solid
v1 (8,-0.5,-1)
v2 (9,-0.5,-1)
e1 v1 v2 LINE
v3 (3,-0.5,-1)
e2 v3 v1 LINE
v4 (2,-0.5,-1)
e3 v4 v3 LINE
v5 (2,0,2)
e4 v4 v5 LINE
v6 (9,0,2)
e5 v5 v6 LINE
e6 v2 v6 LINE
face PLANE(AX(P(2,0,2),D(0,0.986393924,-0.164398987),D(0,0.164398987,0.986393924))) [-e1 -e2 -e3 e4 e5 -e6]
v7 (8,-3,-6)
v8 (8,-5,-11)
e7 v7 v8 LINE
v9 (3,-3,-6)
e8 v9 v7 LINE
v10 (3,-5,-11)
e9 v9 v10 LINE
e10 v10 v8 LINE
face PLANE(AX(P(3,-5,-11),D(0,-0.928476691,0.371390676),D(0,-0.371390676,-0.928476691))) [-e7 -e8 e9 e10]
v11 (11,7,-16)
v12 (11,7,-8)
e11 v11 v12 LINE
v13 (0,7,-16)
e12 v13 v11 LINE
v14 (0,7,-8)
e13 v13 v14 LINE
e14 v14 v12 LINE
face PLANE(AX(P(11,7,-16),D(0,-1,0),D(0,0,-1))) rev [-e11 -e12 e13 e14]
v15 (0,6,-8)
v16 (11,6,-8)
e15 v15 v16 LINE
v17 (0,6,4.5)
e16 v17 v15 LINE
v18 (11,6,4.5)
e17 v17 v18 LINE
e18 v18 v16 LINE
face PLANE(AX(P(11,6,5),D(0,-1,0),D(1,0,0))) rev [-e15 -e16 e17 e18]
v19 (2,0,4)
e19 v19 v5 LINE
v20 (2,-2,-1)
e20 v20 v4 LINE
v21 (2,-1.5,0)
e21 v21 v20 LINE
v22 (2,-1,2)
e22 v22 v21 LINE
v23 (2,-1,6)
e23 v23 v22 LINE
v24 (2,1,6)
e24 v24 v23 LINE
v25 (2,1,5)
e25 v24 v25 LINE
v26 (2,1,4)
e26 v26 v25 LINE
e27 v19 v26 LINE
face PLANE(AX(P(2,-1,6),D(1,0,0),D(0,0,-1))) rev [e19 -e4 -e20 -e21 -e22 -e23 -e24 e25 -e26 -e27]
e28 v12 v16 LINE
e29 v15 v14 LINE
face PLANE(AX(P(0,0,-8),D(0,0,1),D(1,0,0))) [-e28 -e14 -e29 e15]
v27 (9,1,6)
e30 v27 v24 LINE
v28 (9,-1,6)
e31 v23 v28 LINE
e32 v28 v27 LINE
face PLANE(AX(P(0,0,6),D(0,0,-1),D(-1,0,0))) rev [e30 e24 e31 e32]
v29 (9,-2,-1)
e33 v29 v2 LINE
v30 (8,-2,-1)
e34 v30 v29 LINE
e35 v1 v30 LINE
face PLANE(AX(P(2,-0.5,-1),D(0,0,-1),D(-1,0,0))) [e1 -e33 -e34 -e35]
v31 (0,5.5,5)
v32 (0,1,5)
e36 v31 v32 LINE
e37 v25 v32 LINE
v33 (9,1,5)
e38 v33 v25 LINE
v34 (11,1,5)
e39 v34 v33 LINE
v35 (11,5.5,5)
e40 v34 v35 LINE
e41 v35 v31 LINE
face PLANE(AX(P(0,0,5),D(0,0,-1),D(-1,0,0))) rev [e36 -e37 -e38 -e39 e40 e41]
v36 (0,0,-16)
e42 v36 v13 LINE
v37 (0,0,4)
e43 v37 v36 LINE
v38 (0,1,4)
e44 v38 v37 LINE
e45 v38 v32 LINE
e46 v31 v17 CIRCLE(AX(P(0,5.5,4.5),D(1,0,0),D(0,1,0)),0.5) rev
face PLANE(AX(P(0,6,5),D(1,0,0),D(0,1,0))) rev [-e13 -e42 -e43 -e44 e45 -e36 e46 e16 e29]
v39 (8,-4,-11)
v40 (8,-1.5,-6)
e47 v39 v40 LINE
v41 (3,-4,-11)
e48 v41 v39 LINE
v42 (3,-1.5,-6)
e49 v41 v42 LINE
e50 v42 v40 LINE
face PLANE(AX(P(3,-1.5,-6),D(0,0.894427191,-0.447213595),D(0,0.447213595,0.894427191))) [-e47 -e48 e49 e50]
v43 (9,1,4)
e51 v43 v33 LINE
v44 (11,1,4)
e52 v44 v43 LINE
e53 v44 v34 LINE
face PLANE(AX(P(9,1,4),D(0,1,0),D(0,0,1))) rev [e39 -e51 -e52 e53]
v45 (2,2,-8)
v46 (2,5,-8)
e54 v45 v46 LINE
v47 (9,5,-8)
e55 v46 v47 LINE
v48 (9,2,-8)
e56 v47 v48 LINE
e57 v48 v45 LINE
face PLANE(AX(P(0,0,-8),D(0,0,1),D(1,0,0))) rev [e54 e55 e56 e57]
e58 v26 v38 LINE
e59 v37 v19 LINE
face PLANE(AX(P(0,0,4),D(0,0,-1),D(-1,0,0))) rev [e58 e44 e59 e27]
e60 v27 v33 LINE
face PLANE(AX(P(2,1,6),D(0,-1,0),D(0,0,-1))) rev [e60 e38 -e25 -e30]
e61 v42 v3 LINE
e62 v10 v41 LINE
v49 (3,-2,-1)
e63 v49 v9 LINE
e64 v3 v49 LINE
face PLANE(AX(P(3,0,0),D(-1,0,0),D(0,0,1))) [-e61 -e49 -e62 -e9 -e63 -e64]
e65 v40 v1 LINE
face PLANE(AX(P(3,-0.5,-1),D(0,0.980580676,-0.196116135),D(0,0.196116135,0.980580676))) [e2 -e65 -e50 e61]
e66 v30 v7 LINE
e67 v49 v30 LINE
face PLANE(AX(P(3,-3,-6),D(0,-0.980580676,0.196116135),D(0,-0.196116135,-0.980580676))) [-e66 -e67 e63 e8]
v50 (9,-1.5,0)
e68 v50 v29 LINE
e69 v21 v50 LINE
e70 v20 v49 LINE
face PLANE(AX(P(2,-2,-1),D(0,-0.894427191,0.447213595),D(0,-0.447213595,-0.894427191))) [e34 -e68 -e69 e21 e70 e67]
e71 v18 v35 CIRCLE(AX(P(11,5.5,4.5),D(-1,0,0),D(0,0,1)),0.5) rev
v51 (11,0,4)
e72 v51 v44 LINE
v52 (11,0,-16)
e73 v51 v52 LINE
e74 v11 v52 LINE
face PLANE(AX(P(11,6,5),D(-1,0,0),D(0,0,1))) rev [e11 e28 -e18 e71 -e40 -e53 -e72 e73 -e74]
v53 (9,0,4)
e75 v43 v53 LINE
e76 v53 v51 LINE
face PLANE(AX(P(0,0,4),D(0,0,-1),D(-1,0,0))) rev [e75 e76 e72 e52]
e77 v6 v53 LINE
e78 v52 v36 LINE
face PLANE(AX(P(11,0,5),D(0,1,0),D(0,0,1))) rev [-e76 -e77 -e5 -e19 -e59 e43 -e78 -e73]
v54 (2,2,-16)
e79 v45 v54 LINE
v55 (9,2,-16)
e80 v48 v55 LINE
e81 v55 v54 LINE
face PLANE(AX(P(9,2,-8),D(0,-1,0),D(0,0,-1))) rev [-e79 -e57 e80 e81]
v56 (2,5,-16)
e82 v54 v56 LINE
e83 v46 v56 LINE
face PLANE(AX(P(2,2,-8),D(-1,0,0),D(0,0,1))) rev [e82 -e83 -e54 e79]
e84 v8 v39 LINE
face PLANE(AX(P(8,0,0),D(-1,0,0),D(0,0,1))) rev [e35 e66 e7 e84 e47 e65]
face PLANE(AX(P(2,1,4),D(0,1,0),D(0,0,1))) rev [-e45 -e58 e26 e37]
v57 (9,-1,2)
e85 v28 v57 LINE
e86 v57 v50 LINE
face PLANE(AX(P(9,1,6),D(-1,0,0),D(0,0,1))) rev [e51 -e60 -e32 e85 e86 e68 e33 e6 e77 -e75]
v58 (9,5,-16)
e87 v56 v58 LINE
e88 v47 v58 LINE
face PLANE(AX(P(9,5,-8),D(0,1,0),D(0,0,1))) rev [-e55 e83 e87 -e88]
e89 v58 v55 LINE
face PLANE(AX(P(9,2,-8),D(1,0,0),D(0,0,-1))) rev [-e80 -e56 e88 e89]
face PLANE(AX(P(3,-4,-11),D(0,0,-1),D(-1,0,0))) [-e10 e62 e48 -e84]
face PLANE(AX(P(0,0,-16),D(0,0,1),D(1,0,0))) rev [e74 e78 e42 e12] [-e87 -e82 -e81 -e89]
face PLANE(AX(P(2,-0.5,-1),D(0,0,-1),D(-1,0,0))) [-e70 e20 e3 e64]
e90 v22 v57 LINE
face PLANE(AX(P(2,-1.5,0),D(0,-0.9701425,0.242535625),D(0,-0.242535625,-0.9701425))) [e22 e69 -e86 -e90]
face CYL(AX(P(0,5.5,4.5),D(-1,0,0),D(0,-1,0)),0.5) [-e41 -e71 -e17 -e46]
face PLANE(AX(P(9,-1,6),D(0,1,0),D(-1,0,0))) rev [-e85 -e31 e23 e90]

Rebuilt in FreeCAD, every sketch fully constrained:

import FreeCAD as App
import Part
import Sketcher
from FreeCAD import Vector
Q = App.Units.Quantity


def edges_at(feature, points):
    """Names of the edges that pass closest to the given points."""
    edges = feature.Shape.Edges
    near = lambda p: min(range(len(edges)), key=lambda i: edges[i].distToShape(Part.Vertex(*p))[0])
    return sorted({f"Edge{near(p) + 1}" for p in points})

doc = App.newDocument("Part")
body = doc.addObject("PartDesign::Body", "Body")

# Sketch on XY plane
sketch1 = body.newObject("Sketcher::SketchObject", "Sketch")
sketch1.AttachmentSupport = (doc.getObject("XY_Plane"), [""])
sketch1.MapMode = "FlatFace"
sketch1.addGeometry(Part.LineSegment(Vector(0, 6, 0), Vector(0, 0, 0)), False)
sketch1.addGeometry(Part.LineSegment(Vector(0, 0, 0), Vector(11, 0, 0)), False)
sketch1.addGeometry(Part.LineSegment(Vector(11, 0, 0), Vector(11, 6, 0)), False)
sketch1.addGeometry(Part.LineSegment(Vector(11, 6, 0), Vector(0, 6, 0)), False)
sketch1.addConstraint(Sketcher.Constraint("Coincident", 0, 2, 1, 1))
sketch1.addConstraint(Sketcher.Constraint("Coincident", 1, 2, 2, 1))
sketch1.addConstraint(Sketcher.Constraint("Coincident", 2, 2, 3, 1))
sketch1.addConstraint(Sketcher.Constraint("Coincident", 3, 2, 0, 1))
sketch1.addConstraint(Sketcher.Constraint("Vertical", 0))
sketch1.addConstraint(Sketcher.Constraint("Horizontal", 1))
sketch1.addConstraint(Sketcher.Constraint("Vertical", 2))
sketch1.addConstraint(Sketcher.Constraint("Horizontal", 3))
sketch1.addConstraint(Sketcher.Constraint("Coincident", 0, 2, -1, 1))
sketch1.addConstraint(Sketcher.Constraint("DistanceX", 1, 1, 1, 2, Q("11 mm")))
sketch1.addConstraint(Sketcher.Constraint("DistanceY", 0, 2, 0, 1, Q("6 mm")))
pad1 = body.newObject("PartDesign::Pad", "Pad")
pad1.Profile = sketch1
pad1.Length = 5

# Sketch on XY plane
sketch2 = body.newObject("Sketcher::SketchObject", "Sketch001")
sketch2.AttachmentSupport = (doc.getObject("XY_Plane"), [""])
sketch2.MapMode = "FlatFace"
sketch2.addGeometry(Part.LineSegment(Vector(11, 6, 0), Vector(11, 0, 0)), False)
sketch2.addGeometry(Part.LineSegment(Vector(11, 0, 0), Vector(0, 0, 0)), False)
sketch2.addGeometry(Part.LineSegment(Vector(0, 0, 0), Vector(0, 6, 0)), False)
sketch2.addGeometry(Part.LineSegment(Vector(0, 6, 0), Vector(11, 6, 0)), False)
sketch2.addConstraint(Sketcher.Constraint("Coincident", 0, 2, 1, 1))
sketch2.addConstraint(Sketcher.Constraint("Coincident", 1, 2, 2, 1))
sketch2.addConstraint(Sketcher.Constraint("Coincident", 2, 2, 3, 1))
sketch2.addConstraint(Sketcher.Constraint("Coincident", 3, 2, 0, 1))
sketch2.addConstraint(Sketcher.Constraint("Vertical", 0))
sketch2.addConstraint(Sketcher.Constraint("Horizontal", 1))
sketch2.addConstraint(Sketcher.Constraint("Vertical", 2))
sketch2.addConstraint(Sketcher.Constraint("Horizontal", 3))
sketch2.addConstraint(Sketcher.Constraint("Coincident", 1, 2, -1, 1))
sketch2.addConstraint(Sketcher.Constraint("DistanceX", 1, 2, 1, 1, Q("11 mm")))
sketch2.addConstraint(Sketcher.Constraint("DistanceY", 0, 2, 0, 1, Q("6 mm")))
pad2 = body.newObject("PartDesign::Pad", "Pad001")
pad2.Profile = sketch2
pad2.Length = 8
pad2.Reversed = True

# Sketch on XY plane
sketch3 = body.newObject("Sketcher::SketchObject", "Sketch002")
sketch3.AttachmentSupport = (doc.getObject("XY_Plane"), [""])
sketch3.MapMode = "FlatFace"
sketch3.AttachmentOffset = App.Placement(Vector(0, 0, -8), App.Rotation())
sketch3.addGeometry(Part.LineSegment(Vector(11, 7, 0), Vector(11, 0, 0)), False)
sketch3.addGeometry(Part.LineSegment(Vector(11, 0, 0), Vector(0, 0, 0)), False)
sketch3.addGeometry(Part.LineSegment(Vector(0, 0, 0), Vector(0, 7, 0)), False)
sketch3.addGeometry(Part.LineSegment(Vector(0, 7, 0), Vector(11, 7, 0)), False)
sketch3.addConstraint(Sketcher.Constraint("Coincident", 0, 2, 1, 1))
sketch3.addConstraint(Sketcher.Constraint("Coincident", 1, 2, 2, 1))
sketch3.addConstraint(Sketcher.Constraint("Coincident", 2, 2, 3, 1))
sketch3.addConstraint(Sketcher.Constraint("Coincident", 3, 2, 0, 1))
sketch3.addConstraint(Sketcher.Constraint("Vertical", 0))
sketch3.addConstraint(Sketcher.Constraint("Horizontal", 1))
sketch3.addConstraint(Sketcher.Constraint("Vertical", 2))
sketch3.addConstraint(Sketcher.Constraint("Horizontal", 3))
sketch3.addConstraint(Sketcher.Constraint("Coincident", 1, 2, -1, 1))
sketch3.addConstraint(Sketcher.Constraint("DistanceX", 1, 2, 1, 1, Q("11 mm")))
sketch3.addConstraint(Sketcher.Constraint("DistanceY", 0, 2, 0, 1, Q("7 mm")))
pad3 = body.newObject("PartDesign::Pad", "Pad002")
pad3.Profile = sketch3
pad3.Length = 8
pad3.Reversed = True

# Sketch on XY plane
sketch4 = body.newObject("Sketcher::SketchObject", "Sketch003")
sketch4.AttachmentSupport = (doc.getObject("XY_Plane"), [""])
sketch4.MapMode = "FlatFace"
sketch4.AttachmentOffset = App.Placement(Vector(0, 0, 5), App.Rotation())
sketch4.addGeometry(Part.LineSegment(Vector(2, 1, 0), Vector(2, -1, 0)), False)
sketch4.addGeometry(Part.LineSegment(Vector(2, -1, 0), Vector(9, -1, 0)), False)
sketch4.addGeometry(Part.LineSegment(Vector(9, -1, 0), Vector(9, 1, 0)), False)
sketch4.addGeometry(Part.LineSegment(Vector(9, 1, 0), Vector(2, 1, 0)), False)
sketch4.addConstraint(Sketcher.Constraint("Coincident", 0, 2, 1, 1))
sketch4.addConstraint(Sketcher.Constraint("Coincident", 1, 2, 2, 1))
sketch4.addConstraint(Sketcher.Constraint("Coincident", 2, 2, 3, 1))
sketch4.addConstraint(Sketcher.Constraint("Coincident", 3, 2, 0, 1))
sketch4.addConstraint(Sketcher.Constraint("Vertical", 0))
sketch4.addConstraint(Sketcher.Constraint("Horizontal", 1))
sketch4.addConstraint(Sketcher.Constraint("Vertical", 2))
sketch4.addConstraint(Sketcher.Constraint("Horizontal", 3))
sketch4.addConstraint(Sketcher.Constraint("DistanceX", 1, 1, 1, 2, Q("7 mm")))
sketch4.addConstraint(Sketcher.Constraint("DistanceY", 0, 2, 0, 1, Q("2 mm")))
sketch4.addConstraint(Sketcher.Constraint("DistanceX", -1, 1, 0, 2, Q("2 mm")))
sketch4.addConstraint(Sketcher.Constraint("DistanceY", 0, 2, -1, 1, Q("1 mm")))
pad4 = body.newObject("PartDesign::Pad", "Pad003")
pad4.Profile = sketch4
pad4.Length = 1

# Sketch on XY plane
sketch5 = body.newObject("Sketcher::SketchObject", "Sketch004")
sketch5.AttachmentSupport = (doc.getObject("XY_Plane"), [""])
sketch5.MapMode = "FlatFace"
sketch5.AttachmentOffset = App.Placement(Vector(0, 0, 5), App.Rotation())
sketch5.addGeometry(Part.LineSegment(Vector(0, 1, 0), Vector(0, 0, 0)), False)
sketch5.addGeometry(Part.LineSegment(Vector(0, 0, 0), Vector(2, 0, 0)), False)
sketch5.addGeometry(Part.LineSegment(Vector(2, 0, 0), Vector(2, 1, 0)), False)
sketch5.addGeometry(Part.LineSegment(Vector(2, 1, 0), Vector(0, 1, 0)), False)
sketch5.addGeometry(Part.LineSegment(Vector(9, 1, 0), Vector(9, 0, 0)), False)
sketch5.addGeometry(Part.LineSegment(Vector(9, 0, 0), Vector(11, 0, 0)), False)
sketch5.addGeometry(Part.LineSegment(Vector(11, 0, 0), Vector(11, 1, 0)), False)
sketch5.addGeometry(Part.LineSegment(Vector(11, 1, 0), Vector(9, 1, 0)), False)
sketch5.addConstraint(Sketcher.Constraint("Coincident", 0, 2, 1, 1))
sketch5.addConstraint(Sketcher.Constraint("Coincident", 1, 2, 2, 1))
sketch5.addConstraint(Sketcher.Constraint("Coincident", 2, 2, 3, 1))
sketch5.addConstraint(Sketcher.Constraint("Coincident", 3, 2, 0, 1))
sketch5.addConstraint(Sketcher.Constraint("Coincident", 4, 2, 5, 1))
sketch5.addConstraint(Sketcher.Constraint("Coincident", 5, 2, 6, 1))
sketch5.addConstraint(Sketcher.Constraint("Coincident", 6, 2, 7, 1))
sketch5.addConstraint(Sketcher.Constraint("Coincident", 7, 2, 4, 1))
sketch5.addConstraint(Sketcher.Constraint("Vertical", 0))
sketch5.addConstraint(Sketcher.Constraint("Horizontal", 1))
sketch5.addConstraint(Sketcher.Constraint("Vertical", 2))
sketch5.addConstraint(Sketcher.Constraint("Horizontal", 3))
sketch5.addConstraint(Sketcher.Constraint("Vertical", 4))
sketch5.addConstraint(Sketcher.Constraint("Horizontal", 5))
sketch5.addConstraint(Sketcher.Constraint("Vertical", 6))
sketch5.addConstraint(Sketcher.Constraint("Horizontal", 7))
sketch5.addConstraint(Sketcher.Constraint("Coincident", 0, 2, -1, 1))
sketch5.addConstraint(Sketcher.Constraint("PointOnObject", 4, 2, -1))
sketch5.addConstraint(Sketcher.Constraint("Horizontal", 3, 2, 6, 2))
sketch5.addConstraint(Sketcher.Constraint("Equal", 3, 5))
sketch5.addConstraint(Sketcher.Constraint("DistanceX", 1, 1, 1, 2, Q("2 mm")))
sketch5.addConstraint(Sketcher.Constraint("DistanceY", 0, 2, 0, 1, Q("1 mm")))
sketch5.addConstraint(Sketcher.Constraint("DistanceX", -1, 1, 4, 2, Q("9 mm")))
pocket1 = body.newObject("PartDesign::Pocket", "Pocket")
pocket1.Profile = sketch5
pocket1.Length = 1

# Sketch on XZ plane
sketch6 = body.newObject("Sketcher::SketchObject", "Sketch005")
sketch6.AttachmentSupport = (doc.getObject("XZ_Plane"), [""])
sketch6.MapMode = "FlatFace"
sketch6.addGeometry(Part.LineSegment(Vector(2, 5, 0), Vector(2, 2, 0)), False)
sketch6.addGeometry(Part.LineSegment(Vector(2, 2, 0), Vector(9, 2, 0)), False)
sketch6.addGeometry(Part.LineSegment(Vector(9, 2, 0), Vector(9, 5, 0)), False)
sketch6.addGeometry(Part.LineSegment(Vector(9, 5, 0), Vector(2, 5, 0)), False)
sketch6.addConstraint(Sketcher.Constraint("Coincident", 0, 2, 1, 1))
sketch6.addConstraint(Sketcher.Constraint("Coincident", 1, 2, 2, 1))
sketch6.addConstraint(Sketcher.Constraint("Coincident", 2, 2, 3, 1))
sketch6.addConstraint(Sketcher.Constraint("Coincident", 3, 2, 0, 1))
sketch6.addConstraint(Sketcher.Constraint("Vertical", 0))
sketch6.addConstraint(Sketcher.Constraint("Horizontal", 1))
sketch6.addConstraint(Sketcher.Constraint("Vertical", 2))
sketch6.addConstraint(Sketcher.Constraint("Horizontal", 3))
sketch6.addConstraint(Sketcher.Constraint("DistanceX", 1, 1, 1, 2, Q("7 mm")))
sketch6.addConstraint(Sketcher.Constraint("DistanceY", 0, 2, 0, 1, Q("3 mm")))
sketch6.addConstraint(Sketcher.Constraint("DistanceX", -1, 1, 0, 2, Q("2 mm")))
sketch6.addConstraint(Sketcher.Constraint("DistanceY", -1, 1, 0, 2, Q("2 mm")))
pad5 = body.newObject("PartDesign::Pad", "Pad004")
pad5.Profile = sketch6
pad5.Length = 1

# Sketch on YZ plane
sketch7 = body.newObject("Sketcher::SketchObject", "Sketch006")
sketch7.AttachmentSupport = (doc.getObject("YZ_Plane"), [""])
sketch7.MapMode = "FlatFace"
sketch7.AttachmentOffset = App.Placement(Vector(0, 0, 9), App.Rotation())
sketch7.addGeometry(Part.LineSegment(Vector(-0.5, -1, 0), Vector(0, 2, 0)), False)
sketch7.addGeometry(Part.LineSegment(Vector(0, 2, 0), Vector(-1, 2, 0)), False)
sketch7.addGeometry(Part.LineSegment(Vector(-1, 2, 0), Vector(-1.5, 0, 0)), False)
sketch7.addGeometry(Part.LineSegment(Vector(-1.5, 0, 0), Vector(-2, -1, 0)), False)
sketch7.addGeometry(Part.LineSegment(Vector(-2, -1, 0), Vector(-0.5, -1, 0)), False)
sketch7.addConstraint(Sketcher.Constraint("Coincident", 0, 2, 1, 1))
sketch7.addConstraint(Sketcher.Constraint("Coincident", 1, 2, 2, 1))
sketch7.addConstraint(Sketcher.Constraint("Coincident", 2, 2, 3, 1))
sketch7.addConstraint(Sketcher.Constraint("Coincident", 3, 2, 4, 1))
sketch7.addConstraint(Sketcher.Constraint("Coincident", 4, 2, 0, 1))
sketch7.addConstraint(Sketcher.Constraint("Horizontal", 1))
sketch7.addConstraint(Sketcher.Constraint("Horizontal", 4))
sketch7.addConstraint(Sketcher.Constraint("PointOnObject", 0, 2, -2))
sketch7.addConstraint(Sketcher.Constraint("PointOnObject", 2, 2, -1))
sketch7.addConstraint(Sketcher.Constraint("DistanceX", 1, 2, 1, 1, Q("1 mm")))
sketch7.addConstraint(Sketcher.Constraint("DistanceX", 4, 1, 4, 2, Q("1.5 mm")))
sketch7.addConstraint(Sketcher.Constraint("DistanceY", -1, 1, 0, 2, Q("2 mm")))
sketch7.addConstraint(Sketcher.Constraint("DistanceX", 3, 2, -1, 1, Q("2 mm")))
sketch7.addConstraint(Sketcher.Constraint("DistanceY", 3, 2, -1, 1, Q("1 mm")))
sketch7.addConstraint(Sketcher.Constraint("DistanceX", 2, 2, 4, 2, Q("1 mm")))
pad6 = body.newObject("PartDesign::Pad", "Pad005")
pad6.Profile = sketch7
pad6.Length = 7
pad6.Reversed = True

# Sketch on YZ plane
sketch8 = body.newObject("Sketcher::SketchObject", "Sketch007")
sketch8.AttachmentSupport = (doc.getObject("YZ_Plane"), [""])
sketch8.MapMode = "FlatFace"
sketch8.AttachmentOffset = App.Placement(Vector(0, 0, 8), App.Rotation())
sketch8.addGeometry(Part.LineSegment(Vector(-1.5, -6, 0), Vector(-0.5, -1, 0)), False)
sketch8.addGeometry(Part.LineSegment(Vector(-0.5, -1, 0), Vector(-2, -1, 0)), False)
sketch8.addGeometry(Part.LineSegment(Vector(-2, -1, 0), Vector(-3, -6, 0)), False)
sketch8.addGeometry(Part.LineSegment(Vector(-3, -6, 0), Vector(-5, -11, 0)), False)
sketch8.addGeometry(Part.LineSegment(Vector(-5, -11, 0), Vector(-4, -11, 0)), False)
sketch8.addGeometry(Part.LineSegment(Vector(-4, -11, 0), Vector(-1.5, -6, 0)), False)
sketch8.addConstraint(Sketcher.Constraint("Coincident", 0, 2, 1, 1))
sketch8.addConstraint(Sketcher.Constraint("Coincident", 1, 2, 2, 1))
sketch8.addConstraint(Sketcher.Constraint("Coincident", 2, 2, 3, 1))
sketch8.addConstraint(Sketcher.Constraint("Coincident", 3, 2, 4, 1))
sketch8.addConstraint(Sketcher.Constraint("Coincident", 4, 2, 5, 1))
sketch8.addConstraint(Sketcher.Constraint("Coincident", 5, 2, 0, 1))
sketch8.addConstraint(Sketcher.Constraint("Horizontal", 1))
sketch8.addConstraint(Sketcher.Constraint("Horizontal", 4))
sketch8.addConstraint(Sketcher.Constraint("Parallel", 0, 2))
sketch8.addConstraint(Sketcher.Constraint("Horizontal", 2, 2, 5, 2))
sketch8.addConstraint(Sketcher.Constraint("DistanceX", 4, 1, 4, 2, Q("1 mm")))
sketch8.addConstraint(Sketcher.Constraint("DistanceX", 1, 2, 1, 1, Q("1.5 mm")))
sketch8.addConstraint(Sketcher.Constraint("DistanceY", 0, 2, -1, 1, Q("1 mm")))
sketch8.addConstraint(Sketcher.Constraint("DistanceX", 1, 2, -1, 1, Q("2 mm")))
sketch8.addConstraint(Sketcher.Constraint("DistanceX", 2, 2, -1, 1, Q("3 mm")))
sketch8.addConstraint(Sketcher.Constraint("DistanceY", 2, 2, -1, 1, Q("6 mm")))
sketch8.addConstraint(Sketcher.Constraint("DistanceX", 3, 2, -1, 1, Q("5 mm")))
sketch8.addConstraint(Sketcher.Constraint("DistanceY", 3, 2, -1, 1, Q("11 mm")))
pad7 = body.newObject("PartDesign::Pad", "Pad006")
pad7.Profile = sketch8
pad7.Length = 5
pad7.Reversed = True

# Sketch on XY plane
sketch9 = body.newObject("Sketcher::SketchObject", "Sketch008")
sketch9.AttachmentSupport = (doc.getObject("XY_Plane"), [""])
sketch9.MapMode = "FlatFace"
sketch9.AttachmentOffset = App.Placement(Vector(0, 0, -16), App.Rotation())
sketch9.addGeometry(Part.LineSegment(Vector(9, 5, 0), Vector(9, 2, 0)), False)
sketch9.addGeometry(Part.LineSegment(Vector(9, 2, 0), Vector(2, 2, 0)), False)
sketch9.addGeometry(Part.LineSegment(Vector(2, 2, 0), Vector(2, 5, 0)), False)
sketch9.addGeometry(Part.LineSegment(Vector(2, 5, 0), Vector(9, 5, 0)), False)
sketch9.addConstraint(Sketcher.Constraint("Coincident", 0, 2, 1, 1))
sketch9.addConstraint(Sketcher.Constraint("Coincident", 1, 2, 2, 1))
sketch9.addConstraint(Sketcher.Constraint("Coincident", 2, 2, 3, 1))
sketch9.addConstraint(Sketcher.Constraint("Coincident", 3, 2, 0, 1))
sketch9.addConstraint(Sketcher.Constraint("Vertical", 0))
sketch9.addConstraint(Sketcher.Constraint("Horizontal", 1))
sketch9.addConstraint(Sketcher.Constraint("Vertical", 2))
sketch9.addConstraint(Sketcher.Constraint("Horizontal", 3))
sketch9.addConstraint(Sketcher.Constraint("DistanceX", 1, 2, 1, 1, Q("7 mm")))
sketch9.addConstraint(Sketcher.Constraint("DistanceY", 0, 2, 0, 1, Q("3 mm")))
sketch9.addConstraint(Sketcher.Constraint("DistanceX", -1, 1, 0, 2, Q("9 mm")))
sketch9.addConstraint(Sketcher.Constraint("DistanceY", -1, 1, 0, 2, Q("2 mm")))
pocket2 = body.newObject("PartDesign::Pocket", "Pocket001")
pocket2.Profile = sketch9
pocket2.Length = 8
pocket2.Reversed = True
doc.recompute()

fillet = body.newObject("PartDesign::Fillet", "Fillet")
fillet.Base = (pocket2, edges_at(pocket2, [(5.5, 6, 5)]))
fillet.Radius = 0.5

doc.recompute()
